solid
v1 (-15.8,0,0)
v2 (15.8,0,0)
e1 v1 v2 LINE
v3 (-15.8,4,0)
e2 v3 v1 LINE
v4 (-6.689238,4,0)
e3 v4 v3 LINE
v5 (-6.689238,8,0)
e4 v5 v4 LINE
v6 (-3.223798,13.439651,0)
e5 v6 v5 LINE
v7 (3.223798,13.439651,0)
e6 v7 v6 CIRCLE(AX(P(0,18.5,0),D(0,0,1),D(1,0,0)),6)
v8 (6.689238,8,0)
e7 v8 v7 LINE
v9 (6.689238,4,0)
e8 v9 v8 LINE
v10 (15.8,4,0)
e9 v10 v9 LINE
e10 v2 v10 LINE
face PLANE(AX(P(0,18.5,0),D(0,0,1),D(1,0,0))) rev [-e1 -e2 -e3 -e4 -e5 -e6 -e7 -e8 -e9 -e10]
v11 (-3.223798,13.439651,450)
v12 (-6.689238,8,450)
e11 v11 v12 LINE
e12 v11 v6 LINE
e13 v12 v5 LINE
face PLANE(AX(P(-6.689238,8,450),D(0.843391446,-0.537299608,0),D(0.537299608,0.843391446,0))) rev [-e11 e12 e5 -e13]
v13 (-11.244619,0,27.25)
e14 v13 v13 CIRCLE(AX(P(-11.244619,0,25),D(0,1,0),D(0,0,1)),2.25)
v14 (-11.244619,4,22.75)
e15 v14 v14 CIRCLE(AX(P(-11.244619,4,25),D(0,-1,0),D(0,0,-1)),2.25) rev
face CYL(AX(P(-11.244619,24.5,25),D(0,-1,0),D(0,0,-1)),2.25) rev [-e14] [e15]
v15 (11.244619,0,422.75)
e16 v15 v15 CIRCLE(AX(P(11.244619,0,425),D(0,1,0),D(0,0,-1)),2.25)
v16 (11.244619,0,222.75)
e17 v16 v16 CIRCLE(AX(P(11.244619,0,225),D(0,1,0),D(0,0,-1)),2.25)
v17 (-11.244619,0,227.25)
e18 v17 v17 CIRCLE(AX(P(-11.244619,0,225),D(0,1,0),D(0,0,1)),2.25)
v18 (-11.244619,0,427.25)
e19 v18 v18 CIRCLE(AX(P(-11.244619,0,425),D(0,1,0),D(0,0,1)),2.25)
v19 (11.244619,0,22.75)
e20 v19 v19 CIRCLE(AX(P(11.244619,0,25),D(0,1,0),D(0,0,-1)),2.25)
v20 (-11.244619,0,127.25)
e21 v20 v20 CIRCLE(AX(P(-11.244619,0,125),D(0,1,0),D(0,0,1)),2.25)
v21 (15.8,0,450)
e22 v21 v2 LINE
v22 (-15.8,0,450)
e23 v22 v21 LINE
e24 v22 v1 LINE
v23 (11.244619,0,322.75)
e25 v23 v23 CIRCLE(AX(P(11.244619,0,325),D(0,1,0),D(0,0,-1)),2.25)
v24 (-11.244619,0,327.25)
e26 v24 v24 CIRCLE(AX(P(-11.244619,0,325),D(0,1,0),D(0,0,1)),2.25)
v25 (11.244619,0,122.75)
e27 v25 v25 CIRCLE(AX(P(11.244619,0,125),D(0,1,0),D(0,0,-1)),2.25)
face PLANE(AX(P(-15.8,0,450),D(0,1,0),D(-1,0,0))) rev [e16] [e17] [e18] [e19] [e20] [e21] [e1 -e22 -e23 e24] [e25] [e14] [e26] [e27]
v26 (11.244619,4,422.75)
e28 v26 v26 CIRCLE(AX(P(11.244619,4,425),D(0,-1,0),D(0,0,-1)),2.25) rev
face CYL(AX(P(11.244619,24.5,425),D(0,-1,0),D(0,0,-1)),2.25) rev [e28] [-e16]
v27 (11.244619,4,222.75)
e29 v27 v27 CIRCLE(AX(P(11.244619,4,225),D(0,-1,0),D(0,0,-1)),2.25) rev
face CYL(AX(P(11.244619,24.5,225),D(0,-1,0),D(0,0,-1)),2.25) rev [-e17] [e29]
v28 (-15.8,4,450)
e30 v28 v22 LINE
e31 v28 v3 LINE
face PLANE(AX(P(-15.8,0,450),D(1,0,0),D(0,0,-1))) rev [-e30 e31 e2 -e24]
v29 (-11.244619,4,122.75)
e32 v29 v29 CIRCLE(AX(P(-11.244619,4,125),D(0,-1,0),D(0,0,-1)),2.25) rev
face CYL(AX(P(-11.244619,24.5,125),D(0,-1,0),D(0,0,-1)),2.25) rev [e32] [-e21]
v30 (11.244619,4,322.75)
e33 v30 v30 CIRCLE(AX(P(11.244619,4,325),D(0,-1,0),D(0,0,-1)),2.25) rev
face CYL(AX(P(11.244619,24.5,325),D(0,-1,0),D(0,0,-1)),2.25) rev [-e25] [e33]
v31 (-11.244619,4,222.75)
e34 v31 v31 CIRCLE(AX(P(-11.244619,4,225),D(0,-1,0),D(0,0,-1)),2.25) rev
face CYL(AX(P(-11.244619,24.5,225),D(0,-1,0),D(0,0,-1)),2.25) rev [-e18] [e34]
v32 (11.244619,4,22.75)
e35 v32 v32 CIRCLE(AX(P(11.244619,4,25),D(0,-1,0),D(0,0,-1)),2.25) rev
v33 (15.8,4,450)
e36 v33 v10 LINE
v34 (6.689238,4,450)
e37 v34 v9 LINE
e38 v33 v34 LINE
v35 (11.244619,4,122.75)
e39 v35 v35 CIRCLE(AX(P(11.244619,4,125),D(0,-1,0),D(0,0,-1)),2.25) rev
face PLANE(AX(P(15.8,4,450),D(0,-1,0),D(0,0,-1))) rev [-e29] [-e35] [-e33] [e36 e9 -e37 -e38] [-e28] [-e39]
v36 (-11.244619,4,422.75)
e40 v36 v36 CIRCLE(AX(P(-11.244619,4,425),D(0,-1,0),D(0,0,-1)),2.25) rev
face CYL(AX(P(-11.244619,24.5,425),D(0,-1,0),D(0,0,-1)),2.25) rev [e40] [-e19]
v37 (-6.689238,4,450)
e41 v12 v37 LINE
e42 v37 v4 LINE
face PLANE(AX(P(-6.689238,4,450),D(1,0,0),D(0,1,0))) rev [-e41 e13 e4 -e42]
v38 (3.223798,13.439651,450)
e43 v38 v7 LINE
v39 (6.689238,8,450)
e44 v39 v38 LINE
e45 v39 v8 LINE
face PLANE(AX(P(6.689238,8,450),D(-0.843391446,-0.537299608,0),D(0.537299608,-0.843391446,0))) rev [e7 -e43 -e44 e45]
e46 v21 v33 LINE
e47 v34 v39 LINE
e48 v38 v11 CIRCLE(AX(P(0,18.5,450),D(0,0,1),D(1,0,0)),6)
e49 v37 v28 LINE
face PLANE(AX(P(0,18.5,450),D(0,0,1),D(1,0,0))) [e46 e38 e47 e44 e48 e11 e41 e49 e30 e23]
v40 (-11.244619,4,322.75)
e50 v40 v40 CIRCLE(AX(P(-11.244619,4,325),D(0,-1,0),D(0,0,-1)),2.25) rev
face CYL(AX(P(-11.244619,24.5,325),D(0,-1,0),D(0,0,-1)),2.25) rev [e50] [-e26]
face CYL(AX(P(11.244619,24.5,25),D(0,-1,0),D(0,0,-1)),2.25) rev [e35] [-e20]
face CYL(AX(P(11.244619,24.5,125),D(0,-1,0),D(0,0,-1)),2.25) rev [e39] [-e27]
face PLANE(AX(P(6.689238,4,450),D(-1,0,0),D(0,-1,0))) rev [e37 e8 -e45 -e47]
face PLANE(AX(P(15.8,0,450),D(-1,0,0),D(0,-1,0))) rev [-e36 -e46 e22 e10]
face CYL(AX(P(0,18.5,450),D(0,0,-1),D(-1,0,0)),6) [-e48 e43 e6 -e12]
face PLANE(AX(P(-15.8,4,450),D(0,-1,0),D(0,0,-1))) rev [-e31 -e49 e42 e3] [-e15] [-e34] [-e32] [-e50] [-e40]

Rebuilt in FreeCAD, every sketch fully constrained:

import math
import FreeCAD as App
import Part
import Sketcher
from FreeCAD import Vector
Q = App.Units.Quantity

doc = App.newDocument("Part")
body = doc.addObject("PartDesign::Body", "Body")

sketch1 = doc.addObject("Sketcher::SketchObject", "Sketch")
body.addObject(sketch1)
sketch1.AttachmentSupport = (doc.XY_Plane, [""])
sketch1.MapMode = "FlatFace"
sketch1.addGeometry([
    Part.LineSegment(Vector(-15.8, 0, 0), Vector(15.8, 0, 0)),
    Part.LineSegment(Vector(15.8, 0, 0), Vector(15.8, 4, 0)),
    Part.LineSegment(Vector(15.8, 4, 0), Vector(6.7, 4, 0)),
    Part.LineSegment(Vector(6.7, 4, 0), Vector(6.7, 8, 0)),
    Part.LineSegment(Vector(6.7, 8, 0), Vector(3.2, 13.4, 0)),
    Part.ArcOfCircle(Part.Circle(Vector(0, 18.5, 0), Vector(0, 0, 1), 6), math.radians(-58), math.radians(238)),
    Part.LineSegment(Vector(-3.2, 13.4, 0), Vector(-6.7, 8, 0)),
    Part.LineSegment(Vector(-6.7, 8, 0), Vector(-6.7, 4, 0)),
    Part.LineSegment(Vector(-6.7, 4, 0), Vector(-15.8, 4, 0)),
    Part.LineSegment(Vector(-15.8, 4, 0), Vector(-15.8, 0, 0)),
], False)
sketch1.addConstraint([
    Sketcher.Constraint("Coincident", 0, 2, 1, 1),
    Sketcher.Constraint("Coincident", 1, 2, 2, 1),
    Sketcher.Constraint("Coincident", 2, 2, 3, 1),
    Sketcher.Constraint("Coincident", 3, 2, 4, 1),
    Sketcher.Constraint("Coincident", 4, 2, 5, 1),
    Sketcher.Constraint("Coincident", 5, 2, 6, 1),
    Sketcher.Constraint("Coincident", 6, 2, 7, 1),
    Sketcher.Constraint("Coincident", 7, 2, 8, 1),
    Sketcher.Constraint("Coincident", 8, 2, 9, 1),
    Sketcher.Constraint("Coincident", 9, 2, 0, 1),
    Sketcher.Constraint("Horizontal", 0),
    Sketcher.Constraint("Vertical", 1),
    Sketcher.Constraint("Horizontal", 2),
    Sketcher.Constraint("Vertical", 3),
    Sketcher.Constraint("Vertical", 7),
    Sketcher.Constraint("Horizontal", 8),
    Sketcher.Constraint("Vertical", 9),
    Sketcher.Constraint("Symmetric", 0, 2, 9, 2, -1, 1),
    Sketcher.Constraint("Symmetric", 4, 2, 5, 2, -2),
    Sketcher.Constraint("Symmetric", 3, 2, 6, 2, -2),
    Sketcher.Constraint("Horizontal", 2, 2, 7, 2),
    Sketcher.Constraint("Equal", 1, 3),
    Sketcher.Constraint("Radius", 5, Q("6 mm")),
    Sketcher.Constraint("DistanceY", 1, 1, 1, 2, Q("4 mm")),
    Sketcher.Constraint("DistanceX", 0, 1, 0, 2, Q("31.6 mm")),
    Sketcher.Constraint("Angle", 4, Q("122.5 deg")),
    Sketcher.Constraint("DistanceY", -1, 1, 5, 3, Q("18.5 mm")),
    Sketcher.Constraint("DistanceX", 2, 2, 2, 1, Q("9.110762 mm")),
])
pad1 = doc.addObject("PartDesign::Pad", "Pad")
body.addObject(pad1)
pad1.Profile = sketch1
pad1.Length = 450

sketch2 = doc.addObject("Sketcher::SketchObject", "Sketch001")
body.addObject(sketch2)
sketch2.AttachmentSupport = (doc.XZ_Plane, [""])
sketch2.MapMode = "FlatFace"
sketch2.addGeometry([
    Part.Circle(Vector(-11.2, 25, 0), Vector(0, 0, 1), 2.2),
    Part.Circle(Vector(11.2, 25, 0), Vector(0, 0, 1), 2.2),
    Part.Circle(Vector(-11.2, 125, 0), Vector(0, 0, 1), 2.2),
    Part.Circle(Vector(11.2, 125, 0), Vector(0, 0, 1), 2.2),
    Part.Circle(Vector(-11.2, 225, 0), Vector(0, 0, 1), 2.2),
    Part.Circle(Vector(11.2, 225, 0), Vector(0, 0, 1), 2.2),
    Part.Circle(Vector(-11.2, 325, 0), Vector(0, 0, 1), 2.2),
    Part.Circle(Vector(11.2, 325, 0), Vector(0, 0, 1), 2.2),
    Part.Circle(Vector(-11.2, 425, 0), Vector(0, 0, 1), 2.2),
    Part.Circle(Vector(11.2, 425, 0), Vector(0, 0, 1), 2.2),
], False)
sketch2.addConstraint([
    Sketcher.Constraint("Equal", 0, 1),
    Sketcher.Constraint("Equal", 1, 2),
    Sketcher.Constraint("Equal", 2, 3),
    Sketcher.Constraint("Equal", 3, 4),
    Sketcher.Constraint("Equal", 4, 5),
    Sketcher.Constraint("Equal", 5, 6),
    Sketcher.Constraint("Equal", 6, 7),
    Sketcher.Constraint("Equal", 7, 8),
    Sketcher.Constraint("Equal", 8, 9),
    Sketcher.Constraint("Symmetric", 0, 3, 1, 3, -2),
    Sketcher.Constraint("Symmetric", 2, 3, 3, 3, -2),
    Sketcher.Constraint("Symmetric", 4, 3, 5, 3, -2),
    Sketcher.Constraint("Symmetric", 6, 3, 7, 3, -2),
    Sketcher.Constraint("Symmetric", 8, 3, 9, 3, -2),
    Sketcher.Constraint("Vertical", 0, 3, 2, 3),
    Sketcher.Constraint("Vertical", 2, 3, 4, 3),
    Sketcher.Constraint("Vertical", 4, 3, 6, 3),
    Sketcher.Constraint("Vertical", 6, 3, 8, 3),
    Sketcher.Constraint("Diameter", 0, Q("4.5 mm")),
    Sketcher.Constraint("DistanceY", -1, 1, 0, 3, Q("25 mm")),
    Sketcher.Constraint("DistanceY", -1, 1, 2, 3, Q("125 mm")),
    Sketcher.Constraint("DistanceY", -1, 1, 4, 3, Q("225 mm")),
    Sketcher.Constraint("DistanceY", -1, 1, 6, 3, Q("325 mm")),
    Sketcher.Constraint("DistanceY", -1, 1, 8, 3, Q("425 mm")),
    Sketcher.Constraint("DistanceX", 0, 3, -1, 1, Q("11.244619 mm")),
])
pocket1 = doc.addObject("PartDesign::Pocket", "Pocket")
body.addObject(pocket1)
pocket1.Profile = sketch2
pocket1.Type = "ThroughAll"

doc.recompute()
